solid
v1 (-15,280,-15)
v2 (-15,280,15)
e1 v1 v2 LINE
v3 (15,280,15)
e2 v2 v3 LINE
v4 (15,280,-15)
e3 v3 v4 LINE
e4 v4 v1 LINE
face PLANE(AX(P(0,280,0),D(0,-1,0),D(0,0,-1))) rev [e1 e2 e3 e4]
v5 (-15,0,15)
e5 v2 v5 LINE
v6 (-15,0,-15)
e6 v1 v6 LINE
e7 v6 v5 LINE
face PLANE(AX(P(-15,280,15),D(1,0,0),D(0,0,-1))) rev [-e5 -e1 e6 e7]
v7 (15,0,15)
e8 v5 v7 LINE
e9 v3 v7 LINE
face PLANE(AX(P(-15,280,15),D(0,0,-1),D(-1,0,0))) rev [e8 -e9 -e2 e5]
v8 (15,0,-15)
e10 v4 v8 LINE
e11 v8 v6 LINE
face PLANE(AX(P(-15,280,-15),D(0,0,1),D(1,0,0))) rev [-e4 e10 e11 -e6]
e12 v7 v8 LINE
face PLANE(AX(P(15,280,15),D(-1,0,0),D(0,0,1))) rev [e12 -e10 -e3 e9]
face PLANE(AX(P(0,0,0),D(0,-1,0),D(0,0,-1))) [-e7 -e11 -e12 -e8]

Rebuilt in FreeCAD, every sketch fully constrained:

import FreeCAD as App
import Part
import Sketcher
Q = App.Units.Quantity


def add_polygon(sketch, points):
    """Adds a closed chain of lines whose ends are joined by coincident constraints."""
    first, n = sketch.GeometryCount, len(points)
    for a, b in zip(points, points[1:] + points[:1]):
        sketch.addGeometry(Part.LineSegment(App.Vector(*a, 0), App.Vector(*b, 0)), False)
    for i in range(n):
        sketch.addConstraint(Sketcher.Constraint("Coincident", first + i, 2, first + (i + 1) % n, 1))

doc = App.newDocument("Part")
body = doc.addObject("PartDesign::Body", "Body")

# Sketch on XZ plane
sketch1 = body.newObject("Sketcher::SketchObject", "Sketch")
sketch1.AttachmentSupport = (doc.getObject("XZ_Plane"), [""])
sketch1.MapMode = "FlatFace"
add_polygon(sketch1, [(-15, -15), (-15, 15), (15, 15), (15, -15)])  # lines 0-3
sketch1.addConstraint(Sketcher.Constraint("Vertical", 0))
sketch1.addConstraint(Sketcher.Constraint("Horizontal", 1))
sketch1.addConstraint(Sketcher.Constraint("Vertical", 2))
sketch1.addConstraint(Sketcher.Constraint("Horizontal", 3))
sketch1.addConstraint(Sketcher.Constraint("Symmetric", 0, 2, 2, 2, -1, 1))
sketch1.addConstraint(Sketcher.Constraint("Equal", 3, 0))
sketch1.addConstraint(Sketcher.Constraint("DistanceX", 1, 1, 1, 2, Q("30 mm")))
pad1 = body.newObject("PartDesign::Pad", "Pad")
pad1.Profile = sketch1
pad1.Length = 280
pad1.Reversed = True

doc.recompute()
